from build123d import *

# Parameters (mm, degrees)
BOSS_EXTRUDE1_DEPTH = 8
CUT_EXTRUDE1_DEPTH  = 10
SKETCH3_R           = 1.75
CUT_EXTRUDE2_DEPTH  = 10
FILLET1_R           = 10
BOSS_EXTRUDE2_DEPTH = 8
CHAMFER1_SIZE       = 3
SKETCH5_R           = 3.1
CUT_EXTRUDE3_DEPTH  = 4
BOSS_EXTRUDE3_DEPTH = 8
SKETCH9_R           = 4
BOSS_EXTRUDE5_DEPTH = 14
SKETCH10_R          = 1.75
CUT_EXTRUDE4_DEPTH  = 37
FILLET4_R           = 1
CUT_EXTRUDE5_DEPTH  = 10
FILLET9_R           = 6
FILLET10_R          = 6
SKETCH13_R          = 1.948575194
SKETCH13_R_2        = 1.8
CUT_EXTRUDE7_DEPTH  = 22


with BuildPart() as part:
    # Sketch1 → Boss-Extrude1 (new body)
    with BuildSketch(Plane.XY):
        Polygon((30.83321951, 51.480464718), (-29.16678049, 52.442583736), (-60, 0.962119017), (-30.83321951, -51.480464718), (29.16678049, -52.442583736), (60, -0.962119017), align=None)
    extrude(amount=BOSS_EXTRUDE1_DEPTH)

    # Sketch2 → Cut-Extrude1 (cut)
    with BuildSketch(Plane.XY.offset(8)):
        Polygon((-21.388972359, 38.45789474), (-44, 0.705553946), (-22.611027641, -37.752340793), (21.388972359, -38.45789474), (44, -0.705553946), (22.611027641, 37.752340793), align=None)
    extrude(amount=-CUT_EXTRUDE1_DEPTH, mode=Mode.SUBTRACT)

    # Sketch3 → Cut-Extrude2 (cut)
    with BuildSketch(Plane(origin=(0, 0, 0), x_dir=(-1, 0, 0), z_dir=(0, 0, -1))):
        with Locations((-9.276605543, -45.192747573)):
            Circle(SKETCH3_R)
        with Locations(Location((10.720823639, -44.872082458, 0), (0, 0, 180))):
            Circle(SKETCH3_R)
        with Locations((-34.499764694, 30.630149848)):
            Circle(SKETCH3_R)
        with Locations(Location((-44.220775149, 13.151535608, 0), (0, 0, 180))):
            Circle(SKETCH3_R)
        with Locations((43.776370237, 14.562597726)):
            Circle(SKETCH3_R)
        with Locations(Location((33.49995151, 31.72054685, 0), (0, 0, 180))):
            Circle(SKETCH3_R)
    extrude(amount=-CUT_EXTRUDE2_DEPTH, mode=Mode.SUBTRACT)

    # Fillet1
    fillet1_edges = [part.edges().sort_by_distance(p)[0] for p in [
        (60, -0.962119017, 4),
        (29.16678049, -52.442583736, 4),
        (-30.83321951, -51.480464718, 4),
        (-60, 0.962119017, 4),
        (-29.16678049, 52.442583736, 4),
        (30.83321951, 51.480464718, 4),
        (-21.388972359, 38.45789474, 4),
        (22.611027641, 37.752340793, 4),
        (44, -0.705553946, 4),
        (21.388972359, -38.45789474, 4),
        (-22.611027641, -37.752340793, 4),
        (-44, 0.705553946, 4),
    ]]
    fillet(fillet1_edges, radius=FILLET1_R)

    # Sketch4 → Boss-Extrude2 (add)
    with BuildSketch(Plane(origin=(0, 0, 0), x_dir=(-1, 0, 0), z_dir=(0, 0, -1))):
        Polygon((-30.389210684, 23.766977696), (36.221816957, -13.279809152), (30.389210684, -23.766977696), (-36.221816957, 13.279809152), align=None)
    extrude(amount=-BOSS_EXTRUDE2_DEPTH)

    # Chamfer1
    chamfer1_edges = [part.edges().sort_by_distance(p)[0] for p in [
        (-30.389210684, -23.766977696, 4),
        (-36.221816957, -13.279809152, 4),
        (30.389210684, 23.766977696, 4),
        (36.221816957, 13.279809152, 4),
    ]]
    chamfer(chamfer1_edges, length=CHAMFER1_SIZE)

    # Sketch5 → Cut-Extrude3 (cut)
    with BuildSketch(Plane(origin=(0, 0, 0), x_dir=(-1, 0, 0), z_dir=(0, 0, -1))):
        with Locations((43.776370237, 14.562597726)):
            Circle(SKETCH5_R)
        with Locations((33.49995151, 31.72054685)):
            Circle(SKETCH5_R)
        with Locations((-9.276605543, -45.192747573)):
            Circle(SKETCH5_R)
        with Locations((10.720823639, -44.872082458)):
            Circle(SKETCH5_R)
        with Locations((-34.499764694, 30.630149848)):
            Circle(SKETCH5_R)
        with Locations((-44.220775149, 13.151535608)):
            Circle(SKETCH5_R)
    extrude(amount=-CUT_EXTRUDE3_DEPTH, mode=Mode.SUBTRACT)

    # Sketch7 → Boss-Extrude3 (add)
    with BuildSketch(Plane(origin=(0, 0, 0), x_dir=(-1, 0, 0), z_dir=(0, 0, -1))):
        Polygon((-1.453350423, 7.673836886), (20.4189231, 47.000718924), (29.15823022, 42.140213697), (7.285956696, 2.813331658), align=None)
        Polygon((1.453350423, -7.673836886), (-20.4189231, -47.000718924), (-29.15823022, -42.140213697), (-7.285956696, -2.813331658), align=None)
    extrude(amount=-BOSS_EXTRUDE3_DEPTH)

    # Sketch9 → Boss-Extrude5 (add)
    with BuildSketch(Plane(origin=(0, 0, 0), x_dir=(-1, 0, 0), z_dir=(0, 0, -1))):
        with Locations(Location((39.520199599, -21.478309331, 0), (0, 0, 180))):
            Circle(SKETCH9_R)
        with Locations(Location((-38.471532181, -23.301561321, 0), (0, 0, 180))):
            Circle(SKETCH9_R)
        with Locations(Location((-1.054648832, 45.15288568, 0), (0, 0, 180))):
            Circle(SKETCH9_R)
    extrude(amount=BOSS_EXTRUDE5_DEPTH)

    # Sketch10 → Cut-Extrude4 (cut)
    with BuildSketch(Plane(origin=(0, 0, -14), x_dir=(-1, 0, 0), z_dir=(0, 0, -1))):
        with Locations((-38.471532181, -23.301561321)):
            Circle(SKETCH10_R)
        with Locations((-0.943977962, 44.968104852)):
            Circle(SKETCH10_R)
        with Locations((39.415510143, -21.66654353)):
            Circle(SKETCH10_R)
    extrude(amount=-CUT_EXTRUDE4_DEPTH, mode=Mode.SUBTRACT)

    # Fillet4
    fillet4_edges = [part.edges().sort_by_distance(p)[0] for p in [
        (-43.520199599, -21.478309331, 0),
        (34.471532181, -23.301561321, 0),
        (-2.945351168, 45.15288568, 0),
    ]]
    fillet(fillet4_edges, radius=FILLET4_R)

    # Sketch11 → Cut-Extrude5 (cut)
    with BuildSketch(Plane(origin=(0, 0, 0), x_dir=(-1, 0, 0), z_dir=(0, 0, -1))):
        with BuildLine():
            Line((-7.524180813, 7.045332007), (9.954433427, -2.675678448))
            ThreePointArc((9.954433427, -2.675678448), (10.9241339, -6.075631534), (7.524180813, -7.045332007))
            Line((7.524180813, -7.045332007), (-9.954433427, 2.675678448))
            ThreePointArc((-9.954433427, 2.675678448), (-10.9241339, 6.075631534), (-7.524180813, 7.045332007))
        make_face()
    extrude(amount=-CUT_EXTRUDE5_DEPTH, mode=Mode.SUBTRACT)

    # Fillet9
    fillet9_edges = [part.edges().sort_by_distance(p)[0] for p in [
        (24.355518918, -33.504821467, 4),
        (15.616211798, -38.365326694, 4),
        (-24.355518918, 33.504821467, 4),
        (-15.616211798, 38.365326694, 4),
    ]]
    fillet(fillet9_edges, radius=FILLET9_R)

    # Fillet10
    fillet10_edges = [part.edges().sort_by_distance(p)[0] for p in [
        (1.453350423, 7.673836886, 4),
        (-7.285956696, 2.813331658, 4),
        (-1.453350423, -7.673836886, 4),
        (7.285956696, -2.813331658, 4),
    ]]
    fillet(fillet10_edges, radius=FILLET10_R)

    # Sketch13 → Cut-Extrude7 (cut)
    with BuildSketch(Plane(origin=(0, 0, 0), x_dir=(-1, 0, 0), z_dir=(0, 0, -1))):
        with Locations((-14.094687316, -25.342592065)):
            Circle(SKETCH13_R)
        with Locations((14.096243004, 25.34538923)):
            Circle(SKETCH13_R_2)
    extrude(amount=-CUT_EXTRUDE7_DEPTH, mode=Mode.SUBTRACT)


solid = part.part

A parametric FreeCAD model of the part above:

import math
import FreeCAD as App
import Part
import Sketcher
Q = App.Units.Quantity


def edges_at(feature, points):
    """Names of the edges that pass closest to the given points."""
    edges = feature.Shape.Edges
    near = lambda p: min(range(len(edges)), key=lambda i: edges[i].distToShape(Part.Vertex(*p))[0])
    return sorted({f"Edge{near(p) + 1}" for p in points})


def add_polygon(sketch, points):
    """Adds a closed chain of lines whose ends are joined by coincident constraints."""
    first, n = sketch.GeometryCount, len(points)
    for a, b in zip(points, points[1:] + points[:1]):
        sketch.addGeometry(Part.LineSegment(App.Vector(*a, 0), App.Vector(*b, 0)), False)
    for i in range(n):
        sketch.addConstraint(Sketcher.Constraint("Coincident", first + i, 2, first + (i + 1) % n, 1))

doc = App.newDocument("Part")
body = doc.addObject("PartDesign::Body", "Body")

# Sketch on XY plane
sketch1 = body.newObject("Sketcher::SketchObject", "Sketch")
sketch1.AttachmentSupport = (doc.getObject("XY_Plane"), [""])
sketch1.MapMode = "FlatFace"
add_polygon(sketch1, [(31, 51), (-29, 52), (-60, 1), (-31, -51), (29, -52), (60, -1)])  # lines 0-5
sketch1.addConstraint(Sketcher.Constraint("Symmetric", 0, 2, 3, 2, -1, 1))
sketch1.addConstraint(Sketcher.Constraint("Symmetric", 1, 2, 4, 2, -1, 1))
sketch1.addConstraint(Sketcher.Constraint("Symmetric", 2, 2, 5, 2, -1, 1))
sketch1.addConstraint(Sketcher.Constraint("Equal", 0, 1))
sketch1.addConstraint(Sketcher.Constraint("Equal", 1, 2))
sketch1.addConstraint(Sketcher.Constraint("DistanceX", 1, 2, -1, 1, Q("60 mm")))
sketch1.addConstraint(Sketcher.Constraint("DistanceX", 2, 2, 3, 2, Q("60 mm")))
sketch1.addConstraint(Sketcher.Constraint("DistanceX", 0, 2, -1, 1, Q("29.16678 mm")))
sketch1.addConstraint(Sketcher.Constraint("DistanceY", -1, 1, 1, 2, Q("0.962119 mm")))
pad1 = body.newObject("PartDesign::Pad", "Pad")
pad1.Profile = sketch1
pad1.Length = 8

# Sketch on XY plane
sketch2 = body.newObject("Sketcher::SketchObject", "Sketch001")
sketch2.AttachmentSupport = (doc.getObject("XY_Plane"), [""])
sketch2.MapMode = "FlatFace"
sketch2.AttachmentOffset = App.Placement(App.Vector(0, 0, 8), App.Rotation())
add_polygon(sketch2, [(-21, 38), (-44, 1), (-23, -38), (21, -38), (44, -1), (23, 38)])  # lines 0-5
sketch2.addConstraint(Sketcher.Constraint("Symmetric", 0, 2, 3, 2, -1, 1))
sketch2.addConstraint(Sketcher.Constraint("Symmetric", 1, 2, 4, 2, -1, 1))
sketch2.addConstraint(Sketcher.Constraint("Symmetric", 2, 2, 5, 2, -1, 1))
sketch2.addConstraint(Sketcher.Constraint("Equal", 0, 1))
sketch2.addConstraint(Sketcher.Constraint("Equal", 1, 2))
sketch2.addConstraint(Sketcher.Constraint("DistanceX", 0, 2, -1, 1, Q("44 mm")))
sketch2.addConstraint(Sketcher.Constraint("DistanceX", 1, 2, 2, 2, Q("44 mm")))
sketch2.addConstraint(Sketcher.Constraint("DistanceY", 1, 2, -1, 1, Q("37.752341 mm")))
sketch2.addConstraint(Sketcher.Constraint("DistanceY", 2, 2, 0, 2, Q("39.163449 mm")))
pocket1 = body.newObject("PartDesign::Pocket", "Pocket")
pocket1.Profile = sketch2
pocket1.Length = 10

# Sketch on XY plane
sketch3 = body.newObject("Sketcher::SketchObject", "Sketch002")
sketch3.AttachmentSupport = (doc.getObject("XY_Plane"), [""])
sketch3.MapMode = "FlatFace"
sketch3.addGeometry(Part.Circle(App.Vector(9.3, -45.2, 0), App.Vector(0, 0, 1), 1.8), False)
sketch3.addGeometry(Part.Circle(App.Vector(-10.7, -44.9, 0), App.Vector(0, 0, 1), 1.8), False)
sketch3.addGeometry(Part.Circle(App.Vector(34.5, 30.6, 0), App.Vector(0, 0, 1), 1.8), False)
sketch3.addGeometry(Part.Circle(App.Vector(44.2, 13.2, 0), App.Vector(0, 0, 1), 1.8), False)
sketch3.addGeometry(Part.Circle(App.Vector(-43.8, 14.6, 0), App.Vector(0, 0, 1), 1.8), False)
sketch3.addGeometry(Part.Circle(App.Vector(-33.5, 31.7, 0), App.Vector(0, 0, 1), 1.8), False)
sketch3.addConstraint(Sketcher.Constraint("Equal", 0, 1))
sketch3.addConstraint(Sketcher.Constraint("Equal", 1, 2))
sketch3.addConstraint(Sketcher.Constraint("Equal", 2, 3))
sketch3.addConstraint(Sketcher.Constraint("Equal", 3, 4))
sketch3.addConstraint(Sketcher.Constraint("Equal", 4, 5))
sketch3.addConstraint(Sketcher.Constraint("Diameter", 0, Q("3.5 mm")))
sketch3.addConstraint(Sketcher.Constraint("DistanceX", 1, 3, 3, 3, Q("54.941599 mm")))
sketch3.addConstraint(Sketcher.Constraint("DistanceY", -1, 1, 2, 3, Q("30.63015 mm")))
sketch3.addConstraint(Sketcher.Constraint("DistanceX", 4, 3, -1, 1, Q("43.77637 mm")))
sketch3.addConstraint(Sketcher.Constraint("DistanceX", 5, 3, -1, 1, Q("33.499952 mm")))
sketch3.addConstraint(Sketcher.Constraint("DistanceX", 1, 3, 0, 3, Q("19.997429 mm")))
sketch3.addConstraint(Sketcher.Constraint("DistanceX", 0, 3, 2, 3, Q("25.223159 mm")))
sketch3.addConstraint(Sketcher.Constraint("DistanceY", 1, 3, 3, 3, Q("58.023618 mm")))
sketch3.addConstraint(Sketcher.Constraint("DistanceY", 1, 3, 4, 3, Q("59.43468 mm")))
sketch3.addConstraint(Sketcher.Constraint("DistanceY", 4, 3, 5, 3, Q("17.157949 mm")))
sketch3.addConstraint(Sketcher.Constraint("DistanceX", -1, 1, 0, 3, Q("9.276606 mm")))
sketch3.addConstraint(Sketcher.Constraint("DistanceY", 0, 3, -1, 1, Q("45.192748 mm")))
sketch3.addConstraint(Sketcher.Constraint("DistanceY", 1, 3, -1, 1, Q("44.872082 mm")))
pocket2 = body.newObject("PartDesign::Pocket", "Pocket001")
pocket2.Profile = sketch3
pocket2.Length = 10
pocket2.Reversed = True
doc.recompute()

fillet = body.newObject("PartDesign::Fillet", "Fillet")
fillet.Base = (pocket2, edges_at(pocket2, [
    (60, -0.962, 4),
    (29.167, -52.443, 4),
    (-30.833, -51.48, 4),
    (-60, 0.962, 4),
    (-29.167, 52.443, 4),
    (30.833, 51.48, 4),
    (-21.389, 38.458, 4),
    (22.611, 37.752, 4),
    (44, -0.706, 4),
    (21.389, -38.458, 4),
    (-22.611, -37.752, 4),
    (-44, 0.706, 4),
]))
fillet.Radius = 10

# Sketch on XY plane
sketch4 = body.newObject("Sketcher::SketchObject", "Sketch003")
sketch4.AttachmentSupport = (doc.getObject("XY_Plane"), [""])
sketch4.MapMode = "FlatFace"
add_polygon(sketch4, [(-36, -13), (30, 24), (36, 13), (-30, -24)])  # lines 0-3
sketch4.addConstraint(Sketcher.Constraint("Symmetric", 0, 2, 2, 2, -1, 1))
sketch4.addConstraint(Sketcher.Constraint("Symmetric", 1, 2, 3, 2, -1, 1))
sketch4.addConstraint(Sketcher.Constraint("Perpendicular", 0, 1))
sketch4.addConstraint(Sketcher.Constraint("Distance", 1, Q("12 mm")))
sketch4.addConstraint(Sketcher.Constraint("DistanceX", -1, 1, 0, 2, Q("30.389211 mm")))
sketch4.addConstraint(Sketcher.Constraint("DistanceY", -1, 1, 1, 2, Q("13.279809 mm")))
pad2 = body.newObject("PartDesign::Pad", "Pad001")
pad2.Profile = sketch4
pad2.Length = 8
doc.recompute()

chamfer = body.newObject("PartDesign::Chamfer", "Chamfer")
chamfer.Base = (pad2, edges_at(pad2, [
    (-30.389, -23.767, 4),
    (-36.222, -13.28, 4),
    (30.389, 23.767, 4),
    (36.222, 13.28, 4),
]))
chamfer.Size = 3

# Sketch on XY plane
sketch5 = body.newObject("Sketcher::SketchObject", "Sketch004")
sketch5.AttachmentSupport = (doc.getObject("XY_Plane"), [""])
sketch5.MapMode = "FlatFace"
sketch5.addGeometry(Part.Circle(App.Vector(-43.8, 14.6, 0), App.Vector(0, 0, 1), 3.1), False)
sketch5.addGeometry(Part.Circle(App.Vector(-33.5, 31.7, 0), App.Vector(0, 0, 1), 3.1), False)
sketch5.addGeometry(Part.Circle(App.Vector(9.3, -45.2, 0), App.Vector(0, 0, 1), 3.1), False)
sketch5.addGeometry(Part.Circle(App.Vector(-10.7, -44.9, 0), App.Vector(0, 0, 1), 3.1), False)
sketch5.addGeometry(Part.Circle(App.Vector(34.5, 30.6, 0), App.Vector(0, 0, 1), 3.1), False)
sketch5.addGeometry(Part.Circle(App.Vector(44.2, 13.2, 0), App.Vector(0, 0, 1), 3.1), False)
sketch5.addConstraint(Sketcher.Constraint("Equal", 0, 1))
sketch5.addConstraint(Sketcher.Constraint("Equal", 1, 2))
sketch5.addConstraint(Sketcher.Constraint("Equal", 2, 3))
sketch5.addConstraint(Sketcher.Constraint("Equal", 3, 4))
sketch5.addConstraint(Sketcher.Constraint("Equal", 4, 5))
sketch5.addConstraint(Sketcher.Constraint("Diameter", 0, Q("6.2 mm")))
sketch5.addConstraint(Sketcher.Constraint("DistanceX", 3, 3, 5, 3, Q("54.941599 mm")))
sketch5.addConstraint(Sketcher.Constraint("DistanceX", 0, 3, -1, 1, Q("43.77637 mm")))
sketch5.addConstraint(Sketcher.Constraint("DistanceX", 1, 3, -1, 1, Q("33.499952 mm")))
sketch5.addConstraint(Sketcher.Constraint("DistanceY", -1, 1, 4, 3, Q("30.63015 mm")))
sketch5.addConstraint(Sketcher.Constraint("DistanceY", 0, 3, 1, 3, Q("17.157949 mm")))
sketch5.addConstraint(Sketcher.Constraint("DistanceX", 3, 3, 2, 3, Q("19.997429 mm")))
sketch5.addConstraint(Sketcher.Constraint("DistanceY", 3, 3, 0, 3, Q("59.43468 mm")))
sketch5.addConstraint(Sketcher.Constraint("DistanceX", 2, 3, 4, 3, Q("25.223159 mm")))
sketch5.addConstraint(Sketcher.Constraint("DistanceY", 3, 3, 5, 3, Q("58.023618 mm")))
sketch5.addConstraint(Sketcher.Constraint("DistanceY", -1, 1, 0, 3, Q("14.562598 mm")))
sketch5.addConstraint(Sketcher.Constraint("DistanceX", -1, 1, 2, 3, Q("9.276606 mm")))
sketch5.addConstraint(Sketcher.Constraint("DistanceY", 2, 3, -1, 1, Q("45.192748 mm")))
pocket3 = body.newObject("PartDesign::Pocket", "Pocket002")
pocket3.Profile = sketch5
pocket3.Length = 4
pocket3.Reversed = True

# Sketch on XY plane
sketch6 = body.newObject("Sketcher::SketchObject", "Sketch005")
sketch6.AttachmentSupport = (doc.getObject("XY_Plane"), [""])
sketch6.MapMode = "FlatFace"
add_polygon(sketch6, [(-20, 47), (1, 8), (-7, 3), (-29, 42)])  # lines 0-3
add_polygon(sketch6, [(20, -47), (-1, -8), (7, -3), (29, -42)])  # lines 4-7
sketch6.addConstraint(Sketcher.Constraint("Symmetric", 0, 2, 4, 2, -1, 1))
sketch6.addConstraint(Sketcher.Constraint("Symmetric", 1, 2, 5, 2, -1, 1))
sketch6.addConstraint(Sketcher.Constraint("Symmetric", 2, 2, 6, 2, -1, 1))
sketch6.addConstraint(Sketcher.Constraint("Symmetric", 3, 2, 7, 2, -1, 1))
sketch6.addConstraint(Sketcher.Constraint("Perpendicular", 0, 1))
sketch6.addConstraint(Sketcher.Constraint("Perpendicular", 1, 2))
sketch6.addConstraint(Sketcher.Constraint("Perpendicular", 2, 3))
sketch6.addConstraint(Sketcher.Constraint("Distance", 0, Q("45 mm")))
sketch6.addConstraint(Sketcher.Constraint("Distance", 1, Q("10 mm")))
sketch6.addConstraint(Sketcher.Constraint("DistanceX", 4, 2, 0, 2, Q("2.906701 mm")))
sketch6.addConstraint(Sketcher.Constraint("DistanceY", -1, 1, 1, 2, Q("2.813332 mm")))
sketch6.addConstraint(Sketcher.Constraint("DistanceX", 2, 2, -1, 1, Q("29.15823 mm")))
pad3 = body.newObject("PartDesign::Pad", "Pad002")
pad3.Profile = sketch6
pad3.Length = 8

# Sketch on XY plane
sketch7 = body.newObject("Sketcher::SketchObject", "Sketch006")
sketch7.AttachmentSupport = (doc.getObject("XY_Plane"), [""])
sketch7.MapMode = "FlatFace"
sketch7.addGeometry(Part.Circle(App.Vector(-39.5, -21.5, 0), App.Vector(0, 0, 1), 4), False)
sketch7.addGeometry(Part.Circle(App.Vector(38.5, -23.3, 0), App.Vector(0, 0, 1), 4), False)
sketch7.addGeometry(Part.Circle(App.Vector(1.1, 45.2, 0), App.Vector(0, 0, 1), 4), False)
sketch7.addConstraint(Sketcher.Constraint("Equal", 0, 1))
sketch7.addConstraint(Sketcher.Constraint("Equal", 1, 2))
sketch7.addConstraint(Sketcher.Constraint("Diameter", 0, Q("8 mm")))
sketch7.addConstraint(Sketcher.Constraint("DistanceX", 0, 3, -1, 1, Q("39.5202 mm")))
sketch7.addConstraint(Sketcher.Constraint("DistanceY", 0, 3, -1, 1, Q("21.478309 mm")))
sketch7.addConstraint(Sketcher.Constraint("DistanceY", 1, 3, -1, 1, Q("23.301561 mm")))
sketch7.addConstraint(Sketcher.Constraint("DistanceX", -1, 1, 2, 3, Q("1.054649 mm")))
sketch7.addConstraint(Sketcher.Constraint("DistanceX", 0, 3, 1, 3, Q("77.991732 mm")))
sketch7.addConstraint(Sketcher.Constraint("DistanceY", -1, 1, 2, 3, Q("45.152886 mm")))
pad4 = body.newObject("PartDesign::Pad", "Pad003")
pad4.Profile = sketch7
pad4.Length = 14
pad4.Reversed = True

# Sketch on XY plane
sketch8 = body.newObject("Sketcher::SketchObject", "Sketch007")
sketch8.AttachmentSupport = (doc.getObject("XY_Plane"), [""])
sketch8.MapMode = "FlatFace"
sketch8.AttachmentOffset = App.Placement(App.Vector(0, 0, -14), App.Rotation())
sketch8.addGeometry(Part.Circle(App.Vector(38.5, -23.3, 0), App.Vector(0, 0, 1), 1.8), False)
sketch8.addGeometry(Part.Circle(App.Vector(0.9, 45, 0), App.Vector(0, 0, 1), 1.8), False)
sketch8.addGeometry(Part.Circle(App.Vector(-39.4, -21.7, 0), App.Vector(0, 0, 1), 1.8), False)
sketch8.addConstraint(Sketcher.Constraint("Equal", 0, 1))
sketch8.addConstraint(Sketcher.Constraint("Equal", 1, 2))
sketch8.addConstraint(Sketcher.Constraint("Diameter", 0, Q("3.5 mm")))
sketch8.addConstraint(Sketcher.Constraint("DistanceY", 0, 3, -1, 1, Q("23.301561 mm")))
sketch8.addConstraint(Sketcher.Constraint("DistanceX", 2, 3, -1, 1, Q("39.41551 mm")))
sketch8.addConstraint(Sketcher.Constraint("DistanceX", 2, 3, 1, 3, Q("40.359488 mm")))
sketch8.addConstraint(Sketcher.Constraint("DistanceY", 2, 3, 1, 3, Q("66.634648 mm")))
sketch8.addConstraint(Sketcher.Constraint("DistanceX", -1, 1, 0, 3, Q("38.471532 mm")))
sketch8.addConstraint(Sketcher.Constraint("DistanceY", -1, 1, 1, 3, Q("44.968105 mm")))
pocket4 = body.newObject("PartDesign::Pocket", "Pocket003")
pocket4.Profile = sketch8
pocket4.Length = 37
pocket4.Reversed = True
doc.recompute()

fillet2 = body.newObject("PartDesign::Fillet", "Fillet001")
fillet2.Base = (pocket4, edges_at(pocket4, [(-43.52, -21.478, 0), (34.472, -23.302, 0), (-2.945, 45.153, 0)]))
fillet2.Radius = 1

# Sketch on XY plane
sketch9 = body.newObject("Sketcher::SketchObject", "Sketch008")
sketch9.AttachmentSupport = (doc.getObject("XY_Plane"), [""])
sketch9.MapMode = "FlatFace"
sketch9.addGeometry(Part.LineSegment(App.Vector(-10, -2.7, 0), App.Vector(7.5, 7, 0)), False)
sketch9.addGeometry(Part.ArcOfCircle(Part.Circle(App.Vector(8.7, 4.9, 0), App.Vector(0, 0, 1), 2.5), math.radians(-61), math.radians(119)), False)
sketch9.addGeometry(Part.LineSegment(App.Vector(10, 2.7, 0), App.Vector(-7.5, -7, 0)), False)
sketch9.addGeometry(Part.ArcOfCircle(Part.Circle(App.Vector(-8.7, -4.9, 0), App.Vector(0, 0, 1), 2.5), math.radians(119), math.radians(299)), False)
sketch9.addConstraint(Sketcher.Constraint("Tangent", 0, 2, 1, 2))
sketch9.addConstraint(Sketcher.Constraint("Tangent", 1, 1, 2, 1))
sketch9.addConstraint(Sketcher.Constraint("Tangent", 2, 2, 3, 2))
sketch9.addConstraint(Sketcher.Constraint("Tangent", 3, 1, 0, 1))
sketch9.addConstraint(Sketcher.Constraint("Equal", 1, 3))
sketch9.addConstraint(Sketcher.Constraint("Symmetric", 1, 3, 3, 3, -1, 1))
sketch9.addConstraint(Sketcher.Constraint("Radius", 1, Q("2.5 mm")))
sketch9.addConstraint(Sketcher.Constraint("Distance", 0, Q("20 mm")))
sketch9.addConstraint(Sketcher.Constraint("DistanceX", -1, 1, 0, 2, Q("7.524181 mm")))
pocket5 = body.newObject("PartDesign::Pocket", "Pocket004")
pocket5.Profile = sketch9
pocket5.Length = 10
pocket5.Reversed = True
doc.recompute()

fillet3 = body.newObject("PartDesign::Fillet", "Fillet002")
fillet3.Base = (pocket5, edges_at(pocket5, [
    (24.356, -33.505, 4),
    (15.616, -38.365, 4),
    (-24.356, 33.505, 4),
    (-15.616, 38.365, 4),
]))
fillet3.Radius = 6
doc.recompute()

fillet4 = body.newObject("PartDesign::Fillet", "Fillet003")
fillet4.Base = (fillet3, edges_at(fillet3, [
    (1.453, 7.674, 4),
    (-7.286, 2.813, 4),
    (-1.453, -7.674, 4),
    (7.286, -2.813, 4),
]))
fillet4.Radius = 6

# Sketch on XY plane
sketch10 = body.newObject("Sketcher::SketchObject", "Sketch009")
sketch10.AttachmentSupport = (doc.getObject("XY_Plane"), [""])
sketch10.MapMode = "FlatFace"
sketch10.addGeometry(Part.Circle(App.Vector(14.1, -25.3, 0), App.Vector(0, 0, 1), 1.9), False)
sketch10.addGeometry(Part.Circle(App.Vector(-14.1, 25.3, 0), App.Vector(0, 0, 1), 1.8), False)
sketch10.addConstraint(Sketcher.Constraint("Diameter", 1, Q("3.6 mm")))
sketch10.addConstraint(Sketcher.Constraint("Diameter", 0, Q("3.89715 mm")))
sketch10.addConstraint(Sketcher.Constraint("DistanceY", -1, 1, 1, 3, Q("25.345389 mm")))
sketch10.addConstraint(Sketcher.Constraint("DistanceX", 1, 3, 0, 3, Q("28.19093 mm")))
sketch10.addConstraint(Sketcher.Constraint("DistanceY", 0, 3, 1, 3, Q("50.687981 mm")))
sketch10.addConstraint(Sketcher.Constraint("DistanceX", -1, 1, 0, 3, Q("14.094687 mm")))
pocket6 = body.newObject("PartDesign::Pocket", "Pocket005")
pocket6.Profile = sketch10
pocket6.Length = 22
pocket6.Reversed = True

doc.recompute()
